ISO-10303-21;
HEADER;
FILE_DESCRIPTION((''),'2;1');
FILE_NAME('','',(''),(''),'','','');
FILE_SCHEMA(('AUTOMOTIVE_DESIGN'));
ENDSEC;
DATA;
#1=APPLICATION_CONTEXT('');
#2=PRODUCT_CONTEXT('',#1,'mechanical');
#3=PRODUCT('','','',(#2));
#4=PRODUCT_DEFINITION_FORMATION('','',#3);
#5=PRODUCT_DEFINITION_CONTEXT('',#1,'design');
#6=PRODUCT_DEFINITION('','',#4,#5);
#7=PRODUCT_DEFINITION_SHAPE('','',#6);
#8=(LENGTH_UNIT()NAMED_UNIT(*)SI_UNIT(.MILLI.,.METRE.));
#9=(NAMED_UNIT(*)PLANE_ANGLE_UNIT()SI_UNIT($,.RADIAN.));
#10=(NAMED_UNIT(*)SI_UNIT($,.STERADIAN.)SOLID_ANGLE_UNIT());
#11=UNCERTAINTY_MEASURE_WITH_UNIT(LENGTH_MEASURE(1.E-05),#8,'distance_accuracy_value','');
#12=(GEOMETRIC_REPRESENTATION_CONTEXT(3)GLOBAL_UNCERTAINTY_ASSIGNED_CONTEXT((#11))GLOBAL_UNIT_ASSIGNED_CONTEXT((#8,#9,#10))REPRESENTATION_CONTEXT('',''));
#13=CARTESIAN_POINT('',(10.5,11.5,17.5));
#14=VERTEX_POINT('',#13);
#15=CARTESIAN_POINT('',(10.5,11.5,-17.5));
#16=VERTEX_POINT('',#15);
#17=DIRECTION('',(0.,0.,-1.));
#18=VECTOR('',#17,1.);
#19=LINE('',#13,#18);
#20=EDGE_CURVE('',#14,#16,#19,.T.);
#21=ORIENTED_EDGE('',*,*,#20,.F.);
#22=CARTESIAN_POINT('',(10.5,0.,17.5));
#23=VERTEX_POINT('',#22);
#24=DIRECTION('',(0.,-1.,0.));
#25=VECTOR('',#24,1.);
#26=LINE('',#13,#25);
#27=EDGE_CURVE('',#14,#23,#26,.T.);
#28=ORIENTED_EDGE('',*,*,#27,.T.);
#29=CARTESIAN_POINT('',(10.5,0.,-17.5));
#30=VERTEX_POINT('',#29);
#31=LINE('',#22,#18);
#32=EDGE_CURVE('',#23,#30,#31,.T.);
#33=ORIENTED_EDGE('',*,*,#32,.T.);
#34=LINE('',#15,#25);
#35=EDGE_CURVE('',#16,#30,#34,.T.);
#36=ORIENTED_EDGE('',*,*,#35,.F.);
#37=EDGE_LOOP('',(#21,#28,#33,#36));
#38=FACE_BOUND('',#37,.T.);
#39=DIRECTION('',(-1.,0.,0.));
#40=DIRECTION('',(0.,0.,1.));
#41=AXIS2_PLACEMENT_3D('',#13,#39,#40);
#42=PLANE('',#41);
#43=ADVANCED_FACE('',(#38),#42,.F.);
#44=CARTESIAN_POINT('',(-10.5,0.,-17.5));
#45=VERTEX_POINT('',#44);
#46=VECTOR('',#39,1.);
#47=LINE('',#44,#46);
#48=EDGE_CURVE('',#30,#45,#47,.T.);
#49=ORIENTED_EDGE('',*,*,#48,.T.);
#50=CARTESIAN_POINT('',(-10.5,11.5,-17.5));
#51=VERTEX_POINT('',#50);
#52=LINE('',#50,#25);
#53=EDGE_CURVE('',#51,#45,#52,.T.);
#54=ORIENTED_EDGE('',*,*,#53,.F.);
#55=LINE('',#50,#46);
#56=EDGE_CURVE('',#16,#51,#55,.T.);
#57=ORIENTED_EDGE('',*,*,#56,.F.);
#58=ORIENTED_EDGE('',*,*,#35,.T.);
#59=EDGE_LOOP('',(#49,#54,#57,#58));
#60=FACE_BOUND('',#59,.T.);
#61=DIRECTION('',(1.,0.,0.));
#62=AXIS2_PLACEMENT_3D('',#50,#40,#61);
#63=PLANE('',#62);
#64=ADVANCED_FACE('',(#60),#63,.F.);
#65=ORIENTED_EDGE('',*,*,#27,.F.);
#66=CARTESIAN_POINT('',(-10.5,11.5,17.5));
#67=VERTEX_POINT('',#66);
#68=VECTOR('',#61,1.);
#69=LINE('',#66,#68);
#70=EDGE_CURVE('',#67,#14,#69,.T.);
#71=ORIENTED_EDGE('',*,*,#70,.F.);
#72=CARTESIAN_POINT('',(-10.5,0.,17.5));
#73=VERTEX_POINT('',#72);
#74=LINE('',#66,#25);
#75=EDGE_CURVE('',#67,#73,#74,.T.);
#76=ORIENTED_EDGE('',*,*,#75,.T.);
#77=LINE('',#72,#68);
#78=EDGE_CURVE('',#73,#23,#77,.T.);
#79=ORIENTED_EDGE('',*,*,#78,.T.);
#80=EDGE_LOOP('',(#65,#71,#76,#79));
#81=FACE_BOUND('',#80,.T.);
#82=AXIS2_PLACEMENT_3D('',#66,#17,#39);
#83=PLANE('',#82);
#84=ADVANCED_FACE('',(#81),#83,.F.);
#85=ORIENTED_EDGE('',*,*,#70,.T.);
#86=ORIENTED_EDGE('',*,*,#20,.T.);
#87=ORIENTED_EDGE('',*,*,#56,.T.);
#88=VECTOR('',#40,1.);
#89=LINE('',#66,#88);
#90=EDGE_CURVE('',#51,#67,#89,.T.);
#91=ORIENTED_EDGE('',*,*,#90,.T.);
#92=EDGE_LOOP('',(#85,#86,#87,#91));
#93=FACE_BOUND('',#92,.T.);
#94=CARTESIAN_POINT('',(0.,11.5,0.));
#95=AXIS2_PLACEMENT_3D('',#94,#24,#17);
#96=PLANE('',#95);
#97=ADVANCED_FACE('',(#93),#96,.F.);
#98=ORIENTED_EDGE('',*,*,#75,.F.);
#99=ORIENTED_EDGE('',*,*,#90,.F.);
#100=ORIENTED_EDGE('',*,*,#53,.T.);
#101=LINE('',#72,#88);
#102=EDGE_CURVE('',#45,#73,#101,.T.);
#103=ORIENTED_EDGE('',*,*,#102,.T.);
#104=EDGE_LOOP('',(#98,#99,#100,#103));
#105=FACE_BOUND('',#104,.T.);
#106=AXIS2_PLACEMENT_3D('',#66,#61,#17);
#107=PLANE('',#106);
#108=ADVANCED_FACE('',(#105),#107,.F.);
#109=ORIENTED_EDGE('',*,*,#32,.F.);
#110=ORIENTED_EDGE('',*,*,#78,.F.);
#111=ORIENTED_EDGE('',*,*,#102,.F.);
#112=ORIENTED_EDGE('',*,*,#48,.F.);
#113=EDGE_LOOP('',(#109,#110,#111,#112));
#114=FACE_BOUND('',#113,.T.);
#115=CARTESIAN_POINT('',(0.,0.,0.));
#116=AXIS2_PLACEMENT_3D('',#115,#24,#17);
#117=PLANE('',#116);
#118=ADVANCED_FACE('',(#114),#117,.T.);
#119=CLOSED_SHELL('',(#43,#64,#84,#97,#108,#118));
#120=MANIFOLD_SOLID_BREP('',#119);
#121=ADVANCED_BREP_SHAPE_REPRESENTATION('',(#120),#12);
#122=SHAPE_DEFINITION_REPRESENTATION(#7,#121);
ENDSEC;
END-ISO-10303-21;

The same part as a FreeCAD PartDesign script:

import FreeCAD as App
import Part
import Sketcher

V = App.Vector
Q = App.Units.Quantity

doc = App.newDocument("Part")
body = doc.addObject("PartDesign::Body", "Body")

sketch1 = doc.addObject("Sketcher::SketchObject", "Sketch")
body.addObject(sketch1)
sketch1.AttachmentSupport = (doc.XZ_Plane, [""])
sketch1.MapMode = "FlatFace"
sketch1.addGeometry(Part.LineSegment(V(-10, -18, 0), V(-10, 18, 0)), False)
sketch1.addGeometry(Part.LineSegment(V(-10, 18, 0), V(10, 18, 0)), False)
sketch1.addGeometry(Part.LineSegment(V(10, 18, 0), V(10, -18, 0)), False)
sketch1.addGeometry(Part.LineSegment(V(10, -18, 0), V(-10, -18, 0)), False)
sketch1.addConstraint(Sketcher.Constraint("Coincident", 0, 2, 1, 1))
sketch1.addConstraint(Sketcher.Constraint("Coincident", 1, 2, 2, 1))
sketch1.addConstraint(Sketcher.Constraint("Coincident", 2, 2, 3, 1))
sketch1.addConstraint(Sketcher.Constraint("Coincident", 3, 2, 0, 1))
sketch1.addConstraint(Sketcher.Constraint("Vertical", 0))
sketch1.addConstraint(Sketcher.Constraint("Horizontal", 1))
sketch1.addConstraint(Sketcher.Constraint("Vertical", 2))
sketch1.addConstraint(Sketcher.Constraint("Horizontal", 3))
sketch1.addConstraint(Sketcher.Constraint("Symmetric", 0, 2, 2, 2, -1, 1))
sketch1.addConstraint(Sketcher.Constraint("DistanceX", 1, 1, 1, 2, Q("21 mm")))
sketch1.addConstraint(Sketcher.Constraint("DistanceY", 0, 1, 0, 2, Q("35 mm")))
pad1 = doc.addObject("PartDesign::Pad", "Pad")
body.addObject(pad1)
pad1.Profile = sketch1
pad1.Length = 11.5
pad1.Reversed = True

doc.recompute()
